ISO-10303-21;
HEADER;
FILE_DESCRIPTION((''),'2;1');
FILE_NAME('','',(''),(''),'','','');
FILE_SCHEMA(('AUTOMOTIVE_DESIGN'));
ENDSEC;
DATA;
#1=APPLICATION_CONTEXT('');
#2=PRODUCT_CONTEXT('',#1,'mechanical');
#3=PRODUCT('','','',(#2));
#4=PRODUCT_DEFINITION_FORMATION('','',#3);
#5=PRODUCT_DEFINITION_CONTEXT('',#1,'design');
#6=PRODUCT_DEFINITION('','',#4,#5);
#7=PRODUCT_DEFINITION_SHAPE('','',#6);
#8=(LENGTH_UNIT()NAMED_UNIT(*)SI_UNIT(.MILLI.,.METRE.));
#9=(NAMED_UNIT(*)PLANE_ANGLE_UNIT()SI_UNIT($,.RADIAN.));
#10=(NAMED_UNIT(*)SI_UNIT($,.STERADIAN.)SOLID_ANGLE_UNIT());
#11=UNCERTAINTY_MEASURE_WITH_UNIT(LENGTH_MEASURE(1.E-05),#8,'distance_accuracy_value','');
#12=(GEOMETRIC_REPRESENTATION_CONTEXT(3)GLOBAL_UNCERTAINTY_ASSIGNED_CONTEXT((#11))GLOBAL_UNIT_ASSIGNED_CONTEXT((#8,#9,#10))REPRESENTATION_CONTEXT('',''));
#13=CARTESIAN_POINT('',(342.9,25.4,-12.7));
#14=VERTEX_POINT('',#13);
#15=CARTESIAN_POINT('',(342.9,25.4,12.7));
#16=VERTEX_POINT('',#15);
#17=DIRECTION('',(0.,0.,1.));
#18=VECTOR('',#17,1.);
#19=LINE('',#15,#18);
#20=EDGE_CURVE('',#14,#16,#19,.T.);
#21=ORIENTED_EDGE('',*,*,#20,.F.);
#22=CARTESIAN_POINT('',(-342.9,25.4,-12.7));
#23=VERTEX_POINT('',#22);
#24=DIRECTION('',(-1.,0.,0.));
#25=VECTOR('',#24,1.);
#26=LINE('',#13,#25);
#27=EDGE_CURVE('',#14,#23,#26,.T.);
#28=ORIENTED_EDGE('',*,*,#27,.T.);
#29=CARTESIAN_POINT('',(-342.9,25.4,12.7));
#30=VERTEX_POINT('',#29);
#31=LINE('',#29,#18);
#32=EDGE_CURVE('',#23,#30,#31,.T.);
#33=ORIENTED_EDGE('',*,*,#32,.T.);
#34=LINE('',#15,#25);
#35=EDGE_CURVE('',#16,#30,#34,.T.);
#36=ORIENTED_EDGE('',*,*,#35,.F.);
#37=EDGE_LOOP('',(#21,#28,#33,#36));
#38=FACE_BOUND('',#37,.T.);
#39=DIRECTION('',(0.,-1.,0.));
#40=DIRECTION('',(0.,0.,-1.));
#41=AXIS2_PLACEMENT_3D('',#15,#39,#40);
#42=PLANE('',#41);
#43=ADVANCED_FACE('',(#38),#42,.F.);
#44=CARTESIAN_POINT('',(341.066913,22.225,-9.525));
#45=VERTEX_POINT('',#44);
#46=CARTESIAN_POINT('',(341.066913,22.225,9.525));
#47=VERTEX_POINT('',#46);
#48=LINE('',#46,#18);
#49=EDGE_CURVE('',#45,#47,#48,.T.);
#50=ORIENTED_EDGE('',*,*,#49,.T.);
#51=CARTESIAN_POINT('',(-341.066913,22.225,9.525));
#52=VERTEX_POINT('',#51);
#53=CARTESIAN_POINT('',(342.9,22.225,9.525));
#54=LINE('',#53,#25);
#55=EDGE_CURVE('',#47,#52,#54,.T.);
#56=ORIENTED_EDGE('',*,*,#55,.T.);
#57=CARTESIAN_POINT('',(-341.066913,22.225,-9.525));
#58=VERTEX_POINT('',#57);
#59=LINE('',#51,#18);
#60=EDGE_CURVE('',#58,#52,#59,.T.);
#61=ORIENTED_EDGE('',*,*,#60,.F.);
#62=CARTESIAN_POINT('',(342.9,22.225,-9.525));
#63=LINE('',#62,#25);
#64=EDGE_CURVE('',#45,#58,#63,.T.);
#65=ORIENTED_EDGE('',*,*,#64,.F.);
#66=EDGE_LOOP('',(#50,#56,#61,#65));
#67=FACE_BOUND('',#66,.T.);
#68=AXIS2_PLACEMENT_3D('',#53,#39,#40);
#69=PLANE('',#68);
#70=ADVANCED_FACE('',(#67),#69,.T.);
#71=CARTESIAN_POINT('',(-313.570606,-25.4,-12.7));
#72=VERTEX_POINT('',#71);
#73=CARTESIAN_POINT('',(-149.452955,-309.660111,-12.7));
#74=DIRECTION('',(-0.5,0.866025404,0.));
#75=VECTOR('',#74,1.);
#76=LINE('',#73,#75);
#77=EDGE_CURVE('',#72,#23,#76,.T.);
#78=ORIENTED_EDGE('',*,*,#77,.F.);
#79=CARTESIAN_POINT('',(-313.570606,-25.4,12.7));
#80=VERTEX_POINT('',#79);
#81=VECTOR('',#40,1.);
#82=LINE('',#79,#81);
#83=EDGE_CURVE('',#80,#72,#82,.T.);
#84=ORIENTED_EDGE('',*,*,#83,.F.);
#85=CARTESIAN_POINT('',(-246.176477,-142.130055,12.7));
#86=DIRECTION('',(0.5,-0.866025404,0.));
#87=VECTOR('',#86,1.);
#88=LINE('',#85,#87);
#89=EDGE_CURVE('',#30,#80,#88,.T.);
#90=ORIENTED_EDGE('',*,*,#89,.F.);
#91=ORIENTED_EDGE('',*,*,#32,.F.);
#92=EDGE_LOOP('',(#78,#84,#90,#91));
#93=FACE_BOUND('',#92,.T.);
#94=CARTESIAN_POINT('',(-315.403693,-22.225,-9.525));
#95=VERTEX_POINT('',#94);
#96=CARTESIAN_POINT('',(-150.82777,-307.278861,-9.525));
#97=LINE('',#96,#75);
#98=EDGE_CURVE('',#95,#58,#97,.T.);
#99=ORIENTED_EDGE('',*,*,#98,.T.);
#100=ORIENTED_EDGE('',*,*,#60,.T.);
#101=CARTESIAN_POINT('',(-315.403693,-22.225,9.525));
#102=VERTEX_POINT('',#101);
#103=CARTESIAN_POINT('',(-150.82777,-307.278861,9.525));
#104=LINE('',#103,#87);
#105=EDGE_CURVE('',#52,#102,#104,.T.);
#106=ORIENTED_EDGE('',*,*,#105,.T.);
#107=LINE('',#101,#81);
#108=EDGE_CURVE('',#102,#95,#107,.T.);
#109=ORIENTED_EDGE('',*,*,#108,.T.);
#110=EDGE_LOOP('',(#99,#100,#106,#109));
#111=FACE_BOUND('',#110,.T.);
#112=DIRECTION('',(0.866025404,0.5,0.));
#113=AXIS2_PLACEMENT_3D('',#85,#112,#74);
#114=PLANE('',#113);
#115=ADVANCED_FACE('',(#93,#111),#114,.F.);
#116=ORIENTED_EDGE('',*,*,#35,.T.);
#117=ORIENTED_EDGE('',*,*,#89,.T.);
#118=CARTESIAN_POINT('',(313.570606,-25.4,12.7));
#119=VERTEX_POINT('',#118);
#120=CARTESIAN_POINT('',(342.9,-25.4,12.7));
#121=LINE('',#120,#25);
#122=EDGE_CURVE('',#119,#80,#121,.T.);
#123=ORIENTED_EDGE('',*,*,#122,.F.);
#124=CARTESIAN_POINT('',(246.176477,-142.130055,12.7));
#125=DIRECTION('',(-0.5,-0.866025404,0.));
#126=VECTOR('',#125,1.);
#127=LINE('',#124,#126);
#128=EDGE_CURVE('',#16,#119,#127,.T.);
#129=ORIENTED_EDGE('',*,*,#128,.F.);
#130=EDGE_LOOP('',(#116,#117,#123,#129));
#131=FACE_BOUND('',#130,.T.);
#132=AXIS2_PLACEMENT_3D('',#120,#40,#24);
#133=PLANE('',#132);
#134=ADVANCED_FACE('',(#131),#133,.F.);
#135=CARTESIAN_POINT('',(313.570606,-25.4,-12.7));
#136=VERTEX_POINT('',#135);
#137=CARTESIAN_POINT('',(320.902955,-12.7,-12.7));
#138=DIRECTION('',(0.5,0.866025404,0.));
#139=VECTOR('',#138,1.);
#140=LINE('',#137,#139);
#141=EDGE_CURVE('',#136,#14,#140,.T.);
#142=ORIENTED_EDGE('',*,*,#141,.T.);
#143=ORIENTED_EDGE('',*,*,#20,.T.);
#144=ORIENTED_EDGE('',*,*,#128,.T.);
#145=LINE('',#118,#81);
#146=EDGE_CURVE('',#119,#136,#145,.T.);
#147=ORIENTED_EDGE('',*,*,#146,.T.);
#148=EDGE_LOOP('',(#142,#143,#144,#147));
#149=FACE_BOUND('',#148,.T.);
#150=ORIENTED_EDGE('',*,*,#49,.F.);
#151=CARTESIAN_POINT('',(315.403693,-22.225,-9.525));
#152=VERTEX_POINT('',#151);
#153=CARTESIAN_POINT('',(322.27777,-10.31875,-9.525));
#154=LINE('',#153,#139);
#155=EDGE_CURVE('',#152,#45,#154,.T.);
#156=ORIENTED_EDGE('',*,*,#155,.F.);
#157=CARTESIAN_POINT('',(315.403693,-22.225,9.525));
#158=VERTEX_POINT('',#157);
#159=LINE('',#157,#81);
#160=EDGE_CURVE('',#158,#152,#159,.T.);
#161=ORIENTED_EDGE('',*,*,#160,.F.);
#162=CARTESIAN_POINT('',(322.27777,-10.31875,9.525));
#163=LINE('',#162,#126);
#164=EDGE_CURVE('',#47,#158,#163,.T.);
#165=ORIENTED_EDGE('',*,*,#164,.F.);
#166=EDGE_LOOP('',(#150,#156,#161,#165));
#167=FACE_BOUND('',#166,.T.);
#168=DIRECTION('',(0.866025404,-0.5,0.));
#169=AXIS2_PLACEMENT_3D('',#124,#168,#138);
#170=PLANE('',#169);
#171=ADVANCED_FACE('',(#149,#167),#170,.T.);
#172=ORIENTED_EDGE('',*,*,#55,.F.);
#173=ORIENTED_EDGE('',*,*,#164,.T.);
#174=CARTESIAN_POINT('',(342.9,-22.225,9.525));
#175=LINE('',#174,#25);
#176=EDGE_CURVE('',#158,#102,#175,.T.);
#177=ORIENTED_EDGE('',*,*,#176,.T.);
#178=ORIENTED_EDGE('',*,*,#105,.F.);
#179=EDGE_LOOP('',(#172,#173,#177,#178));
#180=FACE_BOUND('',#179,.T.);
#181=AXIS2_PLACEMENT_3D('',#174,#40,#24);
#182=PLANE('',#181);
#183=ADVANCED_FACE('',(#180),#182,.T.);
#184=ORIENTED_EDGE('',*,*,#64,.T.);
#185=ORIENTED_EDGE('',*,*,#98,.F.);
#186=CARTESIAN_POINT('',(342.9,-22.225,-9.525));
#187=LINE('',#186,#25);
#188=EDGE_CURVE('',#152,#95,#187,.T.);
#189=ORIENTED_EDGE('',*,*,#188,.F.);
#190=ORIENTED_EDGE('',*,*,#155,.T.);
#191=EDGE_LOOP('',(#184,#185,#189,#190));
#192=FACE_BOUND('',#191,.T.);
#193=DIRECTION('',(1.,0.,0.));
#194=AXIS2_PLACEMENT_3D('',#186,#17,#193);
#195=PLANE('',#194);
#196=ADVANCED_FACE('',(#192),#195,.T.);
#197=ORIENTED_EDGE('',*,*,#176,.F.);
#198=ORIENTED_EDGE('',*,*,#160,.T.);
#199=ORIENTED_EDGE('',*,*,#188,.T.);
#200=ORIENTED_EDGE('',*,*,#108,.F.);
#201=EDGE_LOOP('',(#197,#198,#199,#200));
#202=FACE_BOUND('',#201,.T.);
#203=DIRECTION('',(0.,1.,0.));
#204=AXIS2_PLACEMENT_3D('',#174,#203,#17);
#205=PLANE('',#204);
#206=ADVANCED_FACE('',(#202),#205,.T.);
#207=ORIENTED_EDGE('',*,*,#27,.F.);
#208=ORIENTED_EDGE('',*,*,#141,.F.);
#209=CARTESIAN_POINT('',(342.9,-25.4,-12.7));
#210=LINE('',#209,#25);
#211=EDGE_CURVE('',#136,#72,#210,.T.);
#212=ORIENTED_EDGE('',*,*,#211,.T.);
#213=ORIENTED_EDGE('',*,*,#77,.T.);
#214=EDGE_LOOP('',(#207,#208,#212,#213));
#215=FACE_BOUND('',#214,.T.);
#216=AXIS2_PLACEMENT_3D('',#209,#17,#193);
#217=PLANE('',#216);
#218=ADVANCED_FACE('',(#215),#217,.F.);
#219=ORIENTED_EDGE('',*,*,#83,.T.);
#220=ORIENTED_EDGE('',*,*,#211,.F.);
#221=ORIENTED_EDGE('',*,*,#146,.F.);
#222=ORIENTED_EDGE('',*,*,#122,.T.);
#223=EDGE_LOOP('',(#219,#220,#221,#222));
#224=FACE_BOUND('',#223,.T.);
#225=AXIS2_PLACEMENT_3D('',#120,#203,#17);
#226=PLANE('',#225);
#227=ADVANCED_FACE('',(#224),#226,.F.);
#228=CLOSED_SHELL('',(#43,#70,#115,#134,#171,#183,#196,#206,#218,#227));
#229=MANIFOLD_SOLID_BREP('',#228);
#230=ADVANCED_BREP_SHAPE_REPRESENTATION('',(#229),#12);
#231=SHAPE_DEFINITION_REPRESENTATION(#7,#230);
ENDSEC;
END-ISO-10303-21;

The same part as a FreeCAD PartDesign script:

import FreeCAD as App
import Part
import Sketcher

V = App.Vector
Q = App.Units.Quantity

doc = App.newDocument("Part")
body = doc.addObject("PartDesign::Body", "Body")

sketch1 = body.newObject("Sketcher::SketchObject", "Sketch")
sketch1.AttachmentSupport = (doc.getObject("YZ_Plane"), [""])
sketch1.MapMode = "FlatFace"
sketch1.addGeometry([
    Part.LineSegment(V(25.4, 12.7, 0), V(-25.4, 12.7, 0)),
    Part.LineSegment(V(-25.4, 12.7, 0), V(-25.4, -12.7, 0)),
    Part.LineSegment(V(-25.4, -12.7, 0), V(25.4, -12.7, 0)),
    Part.LineSegment(V(25.4, -12.7, 0), V(25.4, 12.7, 0)),
    Part.LineSegment(V(-22.225, -9.525, 0), V(-22.225, 9.525, 0)),
    Part.LineSegment(V(-22.225, 9.525, 0), V(22.225, 9.525, 0)),
    Part.LineSegment(V(22.225, 9.525, 0), V(22.225, -9.525, 0)),
    Part.LineSegment(V(22.225, -9.525, 0), V(-22.225, -9.525, 0)),
], False)
sketch1.addConstraint([
    Sketcher.Constraint("Coincident", 0, 2, 1, 1),
    Sketcher.Constraint("Coincident", 1, 2, 2, 1),
    Sketcher.Constraint("Coincident", 2, 2, 3, 1),
    Sketcher.Constraint("Coincident", 3, 2, 0, 1),
    Sketcher.Constraint("Coincident", 4, 2, 5, 1),
    Sketcher.Constraint("Coincident", 5, 2, 6, 1),
    Sketcher.Constraint("Coincident", 6, 2, 7, 1),
    Sketcher.Constraint("Coincident", 7, 2, 4, 1),
    Sketcher.Constraint("Horizontal", 0),
    Sketcher.Constraint("Vertical", 1),
    Sketcher.Constraint("Horizontal", 2),
    Sketcher.Constraint("Vertical", 3),
    Sketcher.Constraint("Vertical", 4),
    Sketcher.Constraint("Horizontal", 5),
    Sketcher.Constraint("Vertical", 6),
    Sketcher.Constraint("Horizontal", 7),
    Sketcher.Constraint("Symmetric", 0, 2, 2, 2, -1, 1),
    Sketcher.Constraint("Symmetric", 4, 2, 6, 2, -1, 1),
    Sketcher.Constraint("DistanceX", 0, 2, 0, 1, Q("2 in")),
    Sketcher.Constraint("DistanceY", 1, 2, 1, 1, Q("1 in")),
    Sketcher.Constraint("DistanceX", 5, 1, 5, 2, Q("1.75 in")),
    Sketcher.Constraint("DistanceY", 4, 1, 4, 2, Q("0.75 in")),
])
pad1 = body.newObject("PartDesign::Pad", "Pad")
pad1.Profile = sketch1
pad1.Length = Q("27 in")
pad1.Midplane = True

sketch2 = body.newObject("Sketcher::SketchObject", "Sketch001")
sketch2.AttachmentSupport = (doc.getObject("XY_Plane"), [""])
sketch2.MapMode = "FlatFace"
sketch2.AttachmentOffset = App.Placement(V(0, 0, -0.5 * 25.4), App.Rotation())
sketch2.addGeometry([
    Part.LineSegment(V(-342.9, -25.4, 0), V(-342.9, 25.4, 0)),
    Part.LineSegment(V(-342.9, 25.4, 0), V(-313.570606, -25.4, 0)),
    Part.LineSegment(V(-313.570606, -25.4, 0), V(-342.9, -25.4, 0)),
    Part.LineSegment(V(342.9, -25.4, 0), V(313.570606, -25.4, 0)),
    Part.LineSegment(V(313.570606, -25.4, 0), V(342.9, 25.4, 0)),
    Part.LineSegment(V(342.9, 25.4, 0), V(342.9, -25.4, 0)),
], False)
sketch2.addConstraint([
    Sketcher.Constraint("Coincident", 0, 2, 1, 1),
    Sketcher.Constraint("Coincident", 1, 2, 2, 1),
    Sketcher.Constraint("Coincident", 2, 2, 0, 1),
    Sketcher.Constraint("Coincident", 3, 2, 4, 1),
    Sketcher.Constraint("Coincident", 4, 2, 5, 1),
    Sketcher.Constraint("Coincident", 5, 2, 3, 1),
    Sketcher.Constraint("Vertical", 0),
    Sketcher.Constraint("Horizontal", 2),
    Sketcher.Constraint("Horizontal", 3),
    Sketcher.Constraint("Vertical", 5),
    Sketcher.Constraint("Symmetric", 2, 2, 4, 2, -1, 1),
    Sketcher.Constraint("Symmetric", 1, 2, 3, 2, -2),
    Sketcher.Constraint("Horizontal", 0, 2, 4, 2),
    Sketcher.Constraint("DistanceY", 0, 1, 0, 2, Q("2 in")),
    Sketcher.Constraint("Angle", 1, Q("-60 deg")),
    Sketcher.Constraint("DistanceX", 0, 2, 4, 2, Q("27 in")),
])
pocket1 = body.newObject("PartDesign::Pocket", "Pocket")
pocket1.Profile = sketch2
pocket1.Type = "ThroughAll"
pocket1.Midplane = True

doc.recompute()
